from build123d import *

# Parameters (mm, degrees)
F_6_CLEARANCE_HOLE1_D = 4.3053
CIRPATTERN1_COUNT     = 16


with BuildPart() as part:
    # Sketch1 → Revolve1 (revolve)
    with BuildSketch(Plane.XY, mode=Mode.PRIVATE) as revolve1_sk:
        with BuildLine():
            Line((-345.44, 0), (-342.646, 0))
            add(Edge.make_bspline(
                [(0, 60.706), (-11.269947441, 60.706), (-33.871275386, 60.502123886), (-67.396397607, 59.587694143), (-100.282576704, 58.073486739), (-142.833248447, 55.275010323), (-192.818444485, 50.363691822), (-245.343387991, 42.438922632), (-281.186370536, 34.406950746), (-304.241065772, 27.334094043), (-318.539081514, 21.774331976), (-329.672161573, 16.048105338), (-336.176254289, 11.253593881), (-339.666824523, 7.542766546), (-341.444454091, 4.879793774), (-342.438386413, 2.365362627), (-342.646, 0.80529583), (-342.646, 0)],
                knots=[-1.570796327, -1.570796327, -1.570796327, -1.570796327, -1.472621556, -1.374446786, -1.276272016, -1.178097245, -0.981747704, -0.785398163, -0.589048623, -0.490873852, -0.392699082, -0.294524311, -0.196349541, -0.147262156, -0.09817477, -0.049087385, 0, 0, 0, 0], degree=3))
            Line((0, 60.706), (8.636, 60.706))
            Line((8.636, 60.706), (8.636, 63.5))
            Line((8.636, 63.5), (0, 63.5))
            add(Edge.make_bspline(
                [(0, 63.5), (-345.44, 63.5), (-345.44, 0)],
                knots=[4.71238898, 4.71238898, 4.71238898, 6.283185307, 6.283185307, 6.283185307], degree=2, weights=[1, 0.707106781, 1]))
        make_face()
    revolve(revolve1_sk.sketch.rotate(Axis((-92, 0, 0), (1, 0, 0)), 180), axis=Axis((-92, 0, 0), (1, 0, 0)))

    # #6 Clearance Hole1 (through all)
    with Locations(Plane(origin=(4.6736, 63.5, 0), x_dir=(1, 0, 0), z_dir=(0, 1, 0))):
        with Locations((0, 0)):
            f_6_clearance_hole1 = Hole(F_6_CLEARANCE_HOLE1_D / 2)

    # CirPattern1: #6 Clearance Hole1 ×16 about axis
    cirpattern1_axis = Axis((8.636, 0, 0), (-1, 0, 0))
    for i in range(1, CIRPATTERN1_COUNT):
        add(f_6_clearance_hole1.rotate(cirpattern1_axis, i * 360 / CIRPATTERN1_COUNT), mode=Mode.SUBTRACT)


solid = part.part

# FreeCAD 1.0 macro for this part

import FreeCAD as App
import Part
import Sketcher

V = App.Vector
Q = App.Units.Quantity

doc = App.newDocument("Part")
body = doc.addObject("PartDesign::Body", "Body")

# Sketch on XY plane
sketch1 = body.newObject("Sketcher::SketchObject", "Sketch")
sketch1.AttachmentSupport = (doc.getObject("XY_Plane"), [""])
sketch1.MapMode = "FlatFace"
sketch1.addGeometry([
    Part.LineSegment(V(-345.44, 0, 0), V(-342.646, 0, 0)),  # 0
    Part.BSplineCurve([V(0, 60.706, 0), V(-11.269947, 60.706, 0), V(-33.871275, 60.502124, 0), V(-67.396398, 59.587694, 0), V(-100.282577, 58.073487, 0), V(-142.833248, 55.27501, 0), V(-192.818444, 50.363692, 0), V(-245.343388, 42.438923, 0), V(-281.186371, 34.406951, 0), V(-304.241066, 27.334094, 0), V(-318.539082, 21.774332, 0), V(-329.672162, 16.048105, 0), V(-336.176254, 11.253594, 0), V(-339.666825, 7.542767, 0), V(-341.444454, 4.879794, 0), V(-342.438386, 2.365363, 0), V(-342.646, 0.805296, 0), V(-342.646, 0, 0)], [4, 1, 1, 1, 1, 1, 1, 1, 1, 1, 1, 1, 1, 1, 1, 4], [-1.570796327, -1.472621556, -1.374446786, -1.276272016, -1.178097245, -0.981747704, -0.785398163, -0.589048623, -0.490873852, -0.392699082, -0.294524311, -0.196349541, -0.147262156, -0.09817477, -0.049087385, 0], False, 3, [1, 1, 1, 1, 1, 1, 1, 1, 1, 1, 1, 1, 1, 1, 1, 1, 1, 1], False),  # 1
    Part.LineSegment(V(0, 60.706, 0), V(8.636, 60.706, 0)),  # 2
    Part.LineSegment(V(8.636, 60.706, 0), V(8.636, 63.5, 0)),  # 3
    Part.LineSegment(V(8.636, 63.5, 0), V(0, 63.5, 0)),  # 4
    Part.BSplineCurve([V(0, 63.5, 0), V(-345.44, 63.5, 0), V(-345.44, 0, 0)], [3, 3], [4.71238898, 6.283185307], False, 2, [1, 0.707106781, 1], False),  # 5
], False)
sketch1.addConstraint([
    Sketcher.Constraint("Block", 1),
    Sketcher.Constraint("Block", 5),
    Sketcher.Constraint("Coincident", 0, 2, 1, 2),
    Sketcher.Constraint("Coincident", 1, 1, 2, 1),
    Sketcher.Constraint("Coincident", 2, 2, 3, 1),
    Sketcher.Constraint("Coincident", 3, 2, 4, 1),
    Sketcher.Constraint("Coincident", 4, 2, 5, 1),
    Sketcher.Constraint("Coincident", 5, 2, 0, 1),
    Sketcher.Constraint("Horizontal", 2),
    Sketcher.Constraint("Vertical", 3),
    Sketcher.Constraint("Horizontal", 4),
    Sketcher.Constraint("DistanceX", 2, 1, 2, 2, Q("0.34 in")),
])
revolution = body.newObject("PartDesign::Revolution", "Revolution")
revolution.Profile = sketch1
revolution.ReferenceAxis = (sketch1, ["H_Axis"])
revolution.Angle = 360

# Sketch on XZ plane
sketch2 = body.newObject("Sketcher::SketchObject", "Sketch001")
sketch2.AttachmentSupport = (doc.getObject("XZ_Plane"), [""])
sketch2.MapMode = "FlatFace"
sketch2.AttachmentOffset = App.Placement(V(0, 0, -2.5 * 25.4), App.Rotation())
sketch2.addGeometry(Part.Circle(V(4.7, 0, 0), V(0, 0, 1), 2.2), False)
sketch2.addConstraint([
    Sketcher.Constraint("PointOnObject", 0, 3, -1),
    Sketcher.Constraint("Diameter", 0, Q("0.1695 in")),
    Sketcher.Constraint("DistanceX", -1, 1, 0, 3, Q("0.184 in")),
])
doc.recompute()
hole = body.newObject("PartDesign::Hole", "Hole")
hole.Profile = sketch2
hole.ThreadType = "None"
hole.Diameter = Q("0.1695 in")
hole.DepthType = "ThroughAll"
hole.Reversed = True
doc.recompute()

polarpattern = body.newObject("PartDesign::PolarPattern", "PolarPattern")
polarpattern.Originals = [hole]
polarpattern.Axis = (doc.getObject("X_Axis"), [""])
polarpattern.Angle = 360
polarpattern.Occurrences = 16
body.Tip = polarpattern

doc.recompute()
